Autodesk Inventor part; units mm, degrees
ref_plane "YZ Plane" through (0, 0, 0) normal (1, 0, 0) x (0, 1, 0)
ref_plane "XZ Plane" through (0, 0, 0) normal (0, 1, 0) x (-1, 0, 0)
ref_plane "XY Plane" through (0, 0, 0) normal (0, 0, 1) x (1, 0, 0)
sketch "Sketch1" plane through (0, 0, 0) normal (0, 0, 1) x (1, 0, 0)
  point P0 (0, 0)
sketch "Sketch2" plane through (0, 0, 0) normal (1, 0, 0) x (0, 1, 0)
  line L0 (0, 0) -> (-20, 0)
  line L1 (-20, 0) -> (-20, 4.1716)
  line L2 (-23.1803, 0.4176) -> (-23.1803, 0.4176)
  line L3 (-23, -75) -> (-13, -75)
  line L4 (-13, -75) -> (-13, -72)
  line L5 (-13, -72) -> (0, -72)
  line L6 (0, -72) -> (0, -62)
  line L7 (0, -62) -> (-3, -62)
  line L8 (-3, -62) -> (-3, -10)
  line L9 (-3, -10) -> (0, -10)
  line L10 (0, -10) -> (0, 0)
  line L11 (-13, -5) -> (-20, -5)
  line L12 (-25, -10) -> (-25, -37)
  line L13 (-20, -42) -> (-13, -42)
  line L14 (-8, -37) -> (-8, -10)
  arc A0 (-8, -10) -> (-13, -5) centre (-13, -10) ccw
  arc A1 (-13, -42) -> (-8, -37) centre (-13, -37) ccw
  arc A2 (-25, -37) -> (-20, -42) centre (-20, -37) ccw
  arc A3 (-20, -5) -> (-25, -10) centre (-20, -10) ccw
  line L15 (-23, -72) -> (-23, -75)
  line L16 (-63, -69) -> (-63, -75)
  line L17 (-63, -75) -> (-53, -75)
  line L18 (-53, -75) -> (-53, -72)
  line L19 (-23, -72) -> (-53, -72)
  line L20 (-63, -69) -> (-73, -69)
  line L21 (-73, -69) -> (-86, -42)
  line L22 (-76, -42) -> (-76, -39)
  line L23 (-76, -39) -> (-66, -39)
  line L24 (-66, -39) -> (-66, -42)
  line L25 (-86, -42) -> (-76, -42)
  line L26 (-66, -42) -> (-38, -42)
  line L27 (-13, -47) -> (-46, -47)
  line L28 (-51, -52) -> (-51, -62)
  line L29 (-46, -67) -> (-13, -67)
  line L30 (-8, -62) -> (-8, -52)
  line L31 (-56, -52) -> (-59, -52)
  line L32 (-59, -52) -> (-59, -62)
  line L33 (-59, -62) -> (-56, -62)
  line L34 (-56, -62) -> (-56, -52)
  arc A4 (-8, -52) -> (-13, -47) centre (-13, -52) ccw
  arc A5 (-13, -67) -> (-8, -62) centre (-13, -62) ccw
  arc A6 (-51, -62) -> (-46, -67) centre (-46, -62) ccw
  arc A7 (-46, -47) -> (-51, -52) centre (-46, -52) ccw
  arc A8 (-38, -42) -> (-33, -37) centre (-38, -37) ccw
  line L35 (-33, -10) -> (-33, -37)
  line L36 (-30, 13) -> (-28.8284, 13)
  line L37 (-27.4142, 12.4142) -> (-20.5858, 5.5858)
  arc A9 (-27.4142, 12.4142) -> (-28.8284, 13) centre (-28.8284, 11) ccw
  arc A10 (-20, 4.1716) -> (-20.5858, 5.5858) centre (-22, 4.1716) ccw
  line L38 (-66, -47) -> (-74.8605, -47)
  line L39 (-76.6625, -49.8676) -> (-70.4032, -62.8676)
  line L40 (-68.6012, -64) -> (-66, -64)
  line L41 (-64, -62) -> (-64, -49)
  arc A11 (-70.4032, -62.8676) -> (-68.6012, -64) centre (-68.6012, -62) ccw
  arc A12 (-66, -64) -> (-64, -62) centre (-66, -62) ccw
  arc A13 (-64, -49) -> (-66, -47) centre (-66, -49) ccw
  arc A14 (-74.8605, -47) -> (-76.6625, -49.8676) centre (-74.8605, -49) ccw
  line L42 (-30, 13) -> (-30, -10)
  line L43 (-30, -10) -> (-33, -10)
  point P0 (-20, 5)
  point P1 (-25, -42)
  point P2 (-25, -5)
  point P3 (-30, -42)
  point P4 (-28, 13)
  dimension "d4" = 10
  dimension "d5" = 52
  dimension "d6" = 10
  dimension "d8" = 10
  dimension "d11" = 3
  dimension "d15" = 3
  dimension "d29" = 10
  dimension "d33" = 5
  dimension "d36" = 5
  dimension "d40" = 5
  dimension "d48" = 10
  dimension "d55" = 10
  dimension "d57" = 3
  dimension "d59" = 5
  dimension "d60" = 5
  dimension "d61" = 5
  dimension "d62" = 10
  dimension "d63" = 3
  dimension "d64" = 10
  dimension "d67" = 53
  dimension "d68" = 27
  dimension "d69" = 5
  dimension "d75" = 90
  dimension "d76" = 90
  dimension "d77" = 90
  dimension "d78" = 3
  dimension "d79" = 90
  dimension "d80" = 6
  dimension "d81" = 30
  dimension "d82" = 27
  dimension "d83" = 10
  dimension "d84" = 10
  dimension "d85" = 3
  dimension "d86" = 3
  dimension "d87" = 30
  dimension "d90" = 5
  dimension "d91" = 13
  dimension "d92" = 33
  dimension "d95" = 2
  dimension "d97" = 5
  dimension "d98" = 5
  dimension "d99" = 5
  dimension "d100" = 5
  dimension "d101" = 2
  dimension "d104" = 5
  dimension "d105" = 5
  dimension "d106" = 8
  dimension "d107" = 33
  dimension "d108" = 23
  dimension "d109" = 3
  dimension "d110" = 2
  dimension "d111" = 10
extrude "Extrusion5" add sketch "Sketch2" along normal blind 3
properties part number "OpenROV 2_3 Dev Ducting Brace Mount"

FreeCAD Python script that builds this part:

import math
import FreeCAD as App
import Part
import Sketcher

V = App.Vector
Q = App.Units.Quantity

doc = App.newDocument("Part")
params = doc.addObject("Spreadsheet::Sheet", "Params")
for row, (alias, value) in enumerate([
    ("sketch1_radius", "2 mm"),
    ("sketch1_radius2", "5 mm"),
    ("sketch1_width", "3 mm"),
    ("sketch1_width2", "10 mm"),
    ("sketch1_width3", "30 mm"),
    ("pad1_length", "3 mm"),
], start=1):
    params.set(f"A{row}", alias)
    params.set(f"B{row}", "=" + value)
    params.setAlias(f"B{row}", alias)

body = doc.addObject("PartDesign::Body", "Body")

# Sketch on YZ plane
sketch1 = body.newObject("Sketcher::SketchObject", "Sketch")
sketch1.AttachmentSupport = (doc.getObject("YZ_Plane"), [""])
sketch1.MapMode = "FlatFace"
sketch1.addGeometry(Part.LineSegment(V(0, -10, 0), V(0, 0, 0)), False)
sketch1.addGeometry(Part.LineSegment(V(0, 0, 0), V(-20, 0, 0)), False)
sketch1.addGeometry(Part.LineSegment(V(-20, 0, 0), V(-20, 4.1716, 0)), False)
sketch1.addGeometry(Part.ArcOfCircle(Part.Circle(V(-22, 4.1716, 0), V(0, 0, 1), 2), math.radians(0), math.radians(45)), False)
sketch1.addGeometry(Part.LineSegment(V(-20.5858, 5.5858, 0), V(-27.4142, 12.4142, 0)), False)
sketch1.addGeometry(Part.ArcOfCircle(Part.Circle(V(-28.8284, 11, 0), V(0, 0, 1), 1.999981), math.radians(45), math.radians(90)), False)
sketch1.addGeometry(Part.LineSegment(V(-28.8284, 13, 0), V(-30, 13, 0)), False)
sketch1.addGeometry(Part.LineSegment(V(-30, 13, 0), V(-30, -10, 0)), False)
sketch1.addGeometry(Part.LineSegment(V(-30, -10, 0), V(-33, -10, 0)), False)
sketch1.addGeometry(Part.LineSegment(V(-33, -10, 0), V(-33, -37, 0)), False)
sketch1.addGeometry(Part.ArcOfCircle(Part.Circle(V(-38, -37, 0), V(0, 0, 1), 5), math.radians(-90), math.radians(0)), False)
sketch1.addGeometry(Part.LineSegment(V(-38, -42, 0), V(-66, -42, 0)), False)
sketch1.addGeometry(Part.LineSegment(V(-66, -42, 0), V(-66, -39, 0)), False)
sketch1.addGeometry(Part.LineSegment(V(-66, -39, 0), V(-76, -39, 0)), False)
sketch1.addGeometry(Part.LineSegment(V(-76, -39, 0), V(-76, -42, 0)), False)
sketch1.addGeometry(Part.LineSegment(V(-76, -42, 0), V(-86, -42, 0)), False)
sketch1.addGeometry(Part.LineSegment(V(-86, -42, 0), V(-73, -69, 0)), False)
sketch1.addGeometry(Part.LineSegment(V(-73, -69, 0), V(-63, -69, 0)), False)
sketch1.addGeometry(Part.LineSegment(V(-63, -69, 0), V(-63, -75, 0)), False)
sketch1.addGeometry(Part.LineSegment(V(-63, -75, 0), V(-53, -75, 0)), False)
sketch1.addGeometry(Part.LineSegment(V(-53, -75, 0), V(-53, -72, 0)), False)
sketch1.addGeometry(Part.LineSegment(V(-53, -72, 0), V(-23, -72, 0)), False)
sketch1.addGeometry(Part.LineSegment(V(-23, -72, 0), V(-23, -75, 0)), False)
sketch1.addGeometry(Part.LineSegment(V(-23, -75, 0), V(-13, -75, 0)), False)
sketch1.addGeometry(Part.LineSegment(V(-13, -75, 0), V(-13, -72, 0)), False)
sketch1.addGeometry(Part.LineSegment(V(-13, -72, 0), V(0, -72, 0)), False)
sketch1.addGeometry(Part.LineSegment(V(0, -72, 0), V(0, -62, 0)), False)
sketch1.addGeometry(Part.LineSegment(V(0, -62, 0), V(-3, -62, 0)), False)
sketch1.addGeometry(Part.LineSegment(V(-3, -62, 0), V(-3, -10, 0)), False)
sketch1.addGeometry(Part.LineSegment(V(-3, -10, 0), V(0, -10, 0)), False)
sketch1.addGeometry(Part.LineSegment(V(-74.8605, -47, 0), V(-66, -47, 0)), False)
sketch1.addGeometry(Part.ArcOfCircle(Part.Circle(V(-66, -49, 0), V(0, 0, 1), 2), math.radians(0), math.radians(90)), False)
sketch1.addGeometry(Part.LineSegment(V(-64, -49, 0), V(-64, -62, 0)), False)
sketch1.addGeometry(Part.ArcOfCircle(Part.Circle(V(-66, -62, 0), V(0, 0, 1), 2), math.radians(-90), math.radians(0)), False)
sketch1.addGeometry(Part.LineSegment(V(-66, -64, 0), V(-68.6012, -64, 0)), False)
sketch1.addGeometry(Part.ArcOfCircle(Part.Circle(V(-68.6012, -62, 0), V(0, 0, 1), 1.999983), math.radians(-154.290811), math.radians(-90)), False)
sketch1.addGeometry(Part.LineSegment(V(-70.4032, -62.8676, 0), V(-76.6625, -49.8676, 0)), False)
sketch1.addGeometry(Part.ArcOfCircle(Part.Circle(V(-74.8605, -49, 0), V(0, 0, 1), 2), math.radians(90), math.radians(205.709189)), False)
sketch1.addGeometry(Part.LineSegment(V(-59, -52, 0), V(-56, -52, 0)), False)
sketch1.addGeometry(Part.LineSegment(V(-56, -52, 0), V(-56, -62, 0)), False)
sketch1.addGeometry(Part.LineSegment(V(-56, -62, 0), V(-59, -62, 0)), False)
sketch1.addGeometry(Part.LineSegment(V(-59, -62, 0), V(-59, -52, 0)), False)
sketch1.addGeometry(Part.LineSegment(V(-46, -47, 0), V(-13, -47, 0)), False)
sketch1.addGeometry(Part.ArcOfCircle(Part.Circle(V(-13, -52, 0), V(0, 0, 1), 5), math.radians(0), math.radians(90)), False)
sketch1.addGeometry(Part.LineSegment(V(-8, -52, 0), V(-8, -62, 0)), False)
sketch1.addGeometry(Part.ArcOfCircle(Part.Circle(V(-13, -62, 0), V(0, 0, 1), 5), math.radians(-90), math.radians(0)), False)
sketch1.addGeometry(Part.LineSegment(V(-13, -67, 0), V(-46, -67, 0)), False)
sketch1.addGeometry(Part.ArcOfCircle(Part.Circle(V(-46, -62, 0), V(0, 0, 1), 5), math.radians(180), math.radians(270)), False)
sketch1.addGeometry(Part.LineSegment(V(-51, -62, 0), V(-51, -52, 0)), False)
sketch1.addGeometry(Part.ArcOfCircle(Part.Circle(V(-46, -52, 0), V(0, 0, 1), 5), math.radians(90), math.radians(180)), False)
sketch1.addGeometry(Part.LineSegment(V(-20, -5, 0), V(-13, -5, 0)), False)
sketch1.addGeometry(Part.ArcOfCircle(Part.Circle(V(-13, -10, 0), V(0, 0, 1), 5), math.radians(0), math.radians(90)), False)
sketch1.addGeometry(Part.LineSegment(V(-8, -10, 0), V(-8, -37, 0)), False)
sketch1.addGeometry(Part.ArcOfCircle(Part.Circle(V(-13, -37, 0), V(0, 0, 1), 5), math.radians(-90), math.radians(0)), False)
sketch1.addGeometry(Part.LineSegment(V(-13, -42, 0), V(-20, -42, 0)), False)
sketch1.addGeometry(Part.ArcOfCircle(Part.Circle(V(-20, -37, 0), V(0, 0, 1), 5), math.radians(180), math.radians(270)), False)
sketch1.addGeometry(Part.LineSegment(V(-25, -37, 0), V(-25, -10, 0)), False)
sketch1.addGeometry(Part.ArcOfCircle(Part.Circle(V(-20, -10, 0), V(0, 0, 1), 5), math.radians(90), math.radians(180)), False)
sketch1.addConstraint(Sketcher.Constraint("Coincident", 0, 2, 1, 1))
sketch1.addConstraint(Sketcher.Constraint("Coincident", 1, 2, 2, 1))
sketch1.addConstraint(Sketcher.Constraint("Tangent", 2, 2, 3, 1))
sketch1.addConstraint(Sketcher.Constraint("Tangent", 3, 2, 4, 1))
sketch1.addConstraint(Sketcher.Constraint("Tangent", 4, 2, 5, 1))
sketch1.addConstraint(Sketcher.Constraint("Tangent", 5, 2, 6, 1))
sketch1.addConstraint(Sketcher.Constraint("Coincident", 6, 2, 7, 1))
sketch1.addConstraint(Sketcher.Constraint("Coincident", 7, 2, 8, 1))
sketch1.addConstraint(Sketcher.Constraint("Coincident", 8, 2, 9, 1))
sketch1.addConstraint(Sketcher.Constraint("Tangent", 9, 2, 10, 2))
sketch1.addConstraint(Sketcher.Constraint("Tangent", 10, 1, 11, 1))
sketch1.addConstraint(Sketcher.Constraint("Coincident", 11, 2, 12, 1))
sketch1.addConstraint(Sketcher.Constraint("Coincident", 12, 2, 13, 1))
sketch1.addConstraint(Sketcher.Constraint("Coincident", 13, 2, 14, 1))
sketch1.addConstraint(Sketcher.Constraint("Coincident", 14, 2, 15, 1))
sketch1.addConstraint(Sketcher.Constraint("Coincident", 15, 2, 16, 1))
sketch1.addConstraint(Sketcher.Constraint("Coincident", 16, 2, 17, 1))
sketch1.addConstraint(Sketcher.Constraint("Coincident", 17, 2, 18, 1))
sketch1.addConstraint(Sketcher.Constraint("Coincident", 18, 2, 19, 1))
sketch1.addConstraint(Sketcher.Constraint("Coincident", 19, 2, 20, 1))
sketch1.addConstraint(Sketcher.Constraint("Coincident", 20, 2, 21, 1))
sketch1.addConstraint(Sketcher.Constraint("Coincident", 21, 2, 22, 1))
sketch1.addConstraint(Sketcher.Constraint("Coincident", 22, 2, 23, 1))
sketch1.addConstraint(Sketcher.Constraint("Coincident", 23, 2, 24, 1))
sketch1.addConstraint(Sketcher.Constraint("Coincident", 24, 2, 25, 1))
sketch1.addConstraint(Sketcher.Constraint("Coincident", 25, 2, 26, 1))
sketch1.addConstraint(Sketcher.Constraint("Coincident", 26, 2, 27, 1))
sketch1.addConstraint(Sketcher.Constraint("Coincident", 27, 2, 28, 1))
sketch1.addConstraint(Sketcher.Constraint("Coincident", 28, 2, 29, 1))
sketch1.addConstraint(Sketcher.Constraint("Coincident", 29, 2, 0, 1))
sketch1.addConstraint(Sketcher.Constraint("Tangent", 30, 2, 31, 2))
sketch1.addConstraint(Sketcher.Constraint("Tangent", 31, 1, 32, 1))
sketch1.addConstraint(Sketcher.Constraint("Tangent", 32, 2, 33, 2))
sketch1.addConstraint(Sketcher.Constraint("Tangent", 33, 1, 34, 1))
sketch1.addConstraint(Sketcher.Constraint("Tangent", 34, 2, 35, 2))
sketch1.addConstraint(Sketcher.Constraint("Tangent", 35, 1, 36, 1))
sketch1.addConstraint(Sketcher.Constraint("Tangent", 36, 2, 37, 2))
sketch1.addConstraint(Sketcher.Constraint("Tangent", 37, 1, 30, 1))
sketch1.addConstraint(Sketcher.Constraint("Coincident", 38, 2, 39, 1))
sketch1.addConstraint(Sketcher.Constraint("Coincident", 39, 2, 40, 1))
sketch1.addConstraint(Sketcher.Constraint("Coincident", 40, 2, 41, 1))
sketch1.addConstraint(Sketcher.Constraint("Coincident", 41, 2, 38, 1))
sketch1.addConstraint(Sketcher.Constraint("Tangent", 42, 2, 43, 2))
sketch1.addConstraint(Sketcher.Constraint("Tangent", 43, 1, 44, 1))
sketch1.addConstraint(Sketcher.Constraint("Tangent", 44, 2, 45, 2))
sketch1.addConstraint(Sketcher.Constraint("Tangent", 45, 1, 46, 1))
sketch1.addConstraint(Sketcher.Constraint("Tangent", 46, 2, 47, 2))
sketch1.addConstraint(Sketcher.Constraint("Tangent", 47, 1, 48, 1))
sketch1.addConstraint(Sketcher.Constraint("Tangent", 48, 2, 49, 2))
sketch1.addConstraint(Sketcher.Constraint("Tangent", 49, 1, 42, 1))
sketch1.addConstraint(Sketcher.Constraint("Tangent", 50, 2, 51, 2))
sketch1.addConstraint(Sketcher.Constraint("Tangent", 51, 1, 52, 1))
sketch1.addConstraint(Sketcher.Constraint("Tangent", 52, 2, 53, 2))
sketch1.addConstraint(Sketcher.Constraint("Tangent", 53, 1, 54, 1))
sketch1.addConstraint(Sketcher.Constraint("Tangent", 54, 2, 55, 2))
sketch1.addConstraint(Sketcher.Constraint("Tangent", 55, 1, 56, 1))
sketch1.addConstraint(Sketcher.Constraint("Tangent", 56, 2, 57, 2))
sketch1.addConstraint(Sketcher.Constraint("Tangent", 57, 1, 50, 1))
sketch1.addConstraint(Sketcher.Constraint("Vertical", 0))
sketch1.addConstraint(Sketcher.Constraint("Horizontal", 1))
sketch1.addConstraint(Sketcher.Constraint("Vertical", 2))
sketch1.addConstraint(Sketcher.Constraint("Horizontal", 6))
sketch1.addConstraint(Sketcher.Constraint("Vertical", 7))
sketch1.addConstraint(Sketcher.Constraint("Horizontal", 8))
sketch1.addConstraint(Sketcher.Constraint("Vertical", 9))
sketch1.addConstraint(Sketcher.Constraint("Horizontal", 11))
sketch1.addConstraint(Sketcher.Constraint("Vertical", 12))
sketch1.addConstraint(Sketcher.Constraint("Horizontal", 13))
sketch1.addConstraint(Sketcher.Constraint("Vertical", 14))
sketch1.addConstraint(Sketcher.Constraint("Horizontal", 15))
sketch1.addConstraint(Sketcher.Constraint("Horizontal", 17))
sketch1.addConstraint(Sketcher.Constraint("Vertical", 18))
sketch1.addConstraint(Sketcher.Constraint("Horizontal", 19))
sketch1.addConstraint(Sketcher.Constraint("Vertical", 20))
sketch1.addConstraint(Sketcher.Constraint("Horizontal", 21))
sketch1.addConstraint(Sketcher.Constraint("Vertical", 22))
sketch1.addConstraint(Sketcher.Constraint("Horizontal", 23))
sketch1.addConstraint(Sketcher.Constraint("Vertical", 24))
sketch1.addConstraint(Sketcher.Constraint("Horizontal", 25))
sketch1.addConstraint(Sketcher.Constraint("Vertical", 26))
sketch1.addConstraint(Sketcher.Constraint("Horizontal", 27))
sketch1.addConstraint(Sketcher.Constraint("Vertical", 28))
sketch1.addConstraint(Sketcher.Constraint("Horizontal", 29))
sketch1.addConstraint(Sketcher.Constraint("Horizontal", 30))
sketch1.addConstraint(Sketcher.Constraint("Vertical", 32))
sketch1.addConstraint(Sketcher.Constraint("Horizontal", 34))
sketch1.addConstraint(Sketcher.Constraint("Horizontal", 38))
sketch1.addConstraint(Sketcher.Constraint("Vertical", 39))
sketch1.addConstraint(Sketcher.Constraint("Horizontal", 40))
sketch1.addConstraint(Sketcher.Constraint("Vertical", 41))
sketch1.addConstraint(Sketcher.Constraint("Horizontal", 42))
sketch1.addConstraint(Sketcher.Constraint("Vertical", 44))
sketch1.addConstraint(Sketcher.Constraint("Horizontal", 46))
sketch1.addConstraint(Sketcher.Constraint("Vertical", 48))
sketch1.addConstraint(Sketcher.Constraint("Horizontal", 50))
sketch1.addConstraint(Sketcher.Constraint("Vertical", 52))
sketch1.addConstraint(Sketcher.Constraint("Horizontal", 54))
sketch1.addConstraint(Sketcher.Constraint("Vertical", 56))
sketch1.addConstraint(Sketcher.Constraint("Coincident", 0, 2, -1, 1))
sketch1.addConstraint(Sketcher.Constraint("Equal", 3, 5))
sketch1.addConstraint(Sketcher.Constraint("Equal", 5, 31))
sketch1.addConstraint(Sketcher.Constraint("Equal", 31, 33))
sketch1.addConstraint(Sketcher.Constraint("Equal", 33, 35))
sketch1.addConstraint(Sketcher.Constraint("Equal", 35, 37))
sketch1.addConstraint(Sketcher.Constraint("Equal", 10, 43))
sketch1.addConstraint(Sketcher.Constraint("Equal", 43, 45))
sketch1.addConstraint(Sketcher.Constraint("Equal", 45, 47))
sketch1.addConstraint(Sketcher.Constraint("Equal", 47, 49))
sketch1.addConstraint(Sketcher.Constraint("Equal", 49, 51))
sketch1.addConstraint(Sketcher.Constraint("Equal", 51, 53))
sketch1.addConstraint(Sketcher.Constraint("Equal", 53, 55))
sketch1.addConstraint(Sketcher.Constraint("Equal", 55, 57))
sketch1.addConstraint(Sketcher.Constraint("PointOnObject", 25, 2, -2))
sketch1.addConstraint(Sketcher.Constraint("Parallel", 16, 36))
sketch1.addConstraint(Sketcher.Constraint("Horizontal", 35, 3, 45, 3))
sketch1.addConstraint(Sketcher.Constraint("Horizontal", 10, 3, 53, 3))
sketch1.addConstraint(Sketcher.Constraint("Horizontal", 57, 3, 7, 2))
sketch1.addConstraint(Sketcher.Constraint("Horizontal", 11, 2, 14, 2))
sketch1.addConstraint(Sketcher.Constraint("Horizontal", 19, 2, 22, 2))
sketch1.addConstraint(Sketcher.Constraint("Horizontal", 21, 2, 24, 2))
sketch1.addConstraint(Sketcher.Constraint("Horizontal", 47, 3, 26, 2))
sketch1.addConstraint(Sketcher.Constraint("Horizontal", 8, 2, 28, 2))
sketch1.addConstraint(Sketcher.Constraint("Horizontal", 49, 3, 38, 2))
sketch1.addConstraint(Sketcher.Constraint("Horizontal", 32, 2, 39, 2))
sketch1.addConstraint(Sketcher.Constraint("Horizontal", 37, 1, 42, 2))
sketch1.addConstraint(Sketcher.Constraint("Vertical", 45, 3, 51, 3))
sketch1.addConstraint(Sketcher.Constraint("Vertical", 57, 3, 1, 2))
sketch1.addConstraint(Sketcher.Constraint("Vertical", 33, 3, 11, 2))
sketch1.addConstraint(Sketcher.Constraint("Vertical", 53, 3, 23, 2))
sketch1.addConstraint(Sketcher.Constraint("Equal", 13, 15))
sketch1.addConstraint(Sketcher.Constraint("Equal", 15, 17))
sketch1.addConstraint(Sketcher.Constraint("Equal", 17, 19))
sketch1.addConstraint(Sketcher.Constraint("Equal", 19, 23))
sketch1.addConstraint(Sketcher.Constraint("Equal", 8, 27))
sketch1.addConstraint(Sketcher.Constraint("Equal", 29, 38))
sketch1.addConstraint(Sketcher.Constraint("Equal", 23, 0))
sketch1.addConstraint(Sketcher.Constraint("Equal", 40, 12))
sketch1.addConstraint(Sketcher.Constraint("Equal", 14, 20))
sketch1.addConstraint(Sketcher.Constraint("Equal", 0, 26))
sketch1.addConstraint(Sketcher.Constraint("Equal", 25, 32))
sketch1.addConstraint(Sketcher.Constraint("Equal", 26, 39))
sketch1.addConstraint(Sketcher.Constraint("Radius", 3, Q("2 mm")))
sketch1.addConstraint(Sketcher.Constraint("Radius", 10, Q("5 mm")))
sketch1.addConstraint(Sketcher.Constraint("DistanceX", 8, 2, 8, 1, Q("3 mm")))
sketch1.addConstraint(Sketcher.Constraint("DistanceX", 13, 2, 13, 1, Q("10 mm")))
sketch1.addConstraint(Sketcher.Constraint("DistanceX", 21, 1, 21, 2, Q("30 mm")))
sketch1.addConstraint(Sketcher.Constraint("DistanceX", 42, 1, 42, 2, Q("33 mm")))
sketch1.addConstraint(Sketcher.Constraint("DistanceY", 7, 2, 7, 1, Q("23 mm")))
sketch1.addConstraint(Sketcher.Constraint("DistanceY", 9, 2, 9, 1, Q("27 mm")))
sketch1.addConstraint(Sketcher.Constraint("DistanceY", 18, 2, 18, 1, Q("6 mm")))
sketch1.addConstraint(Sketcher.Constraint("DistanceY", 28, 1, 28, 2, Q("52 mm")))
sketch1.addConstraint(Sketcher.Constraint("DistanceX", 6, 2, -1, 1, Q("30 mm")))
sketch1.addConstraint(Sketcher.Constraint("DistanceX", 1, 2, 1, 1, Q("20 mm")))
sketch1.addConstraint(Sketcher.Constraint("DistanceX", 11, 2, 11, 1, Q("28 mm")))
sketch1.addConstraint(Sketcher.Constraint("Angle", 4, Q("135 deg")))
sketch1.addConstraint(Sketcher.Constraint("DistanceX", 38, 2, -1, 1, Q("56 mm")))
sketch1.addConstraint(Sketcher.Constraint("DistanceX", 6, 2, 6, 1, Q("1.1716 mm")))
sketch1.addConstraint(Sketcher.Constraint("DistanceX", 30, 1, 30, 2, Q("8.8605 mm")))
sketch1.setExpression("Constraints[141]", "Params.sketch1_radius")
sketch1.setExpression("Constraints[142]", "Params.sketch1_radius2")
sketch1.setExpression("Constraints[143]", "Params.sketch1_width")
sketch1.setExpression("Constraints[144]", "Params.sketch1_width2")
sketch1.setExpression("Constraints[145]", "Params.sketch1_width3")
pad1 = body.newObject("PartDesign::Pad", "Pad")
pad1.Profile = sketch1
pad1.setExpression("Length", "Params.pad1_length")

doc.recompute()
